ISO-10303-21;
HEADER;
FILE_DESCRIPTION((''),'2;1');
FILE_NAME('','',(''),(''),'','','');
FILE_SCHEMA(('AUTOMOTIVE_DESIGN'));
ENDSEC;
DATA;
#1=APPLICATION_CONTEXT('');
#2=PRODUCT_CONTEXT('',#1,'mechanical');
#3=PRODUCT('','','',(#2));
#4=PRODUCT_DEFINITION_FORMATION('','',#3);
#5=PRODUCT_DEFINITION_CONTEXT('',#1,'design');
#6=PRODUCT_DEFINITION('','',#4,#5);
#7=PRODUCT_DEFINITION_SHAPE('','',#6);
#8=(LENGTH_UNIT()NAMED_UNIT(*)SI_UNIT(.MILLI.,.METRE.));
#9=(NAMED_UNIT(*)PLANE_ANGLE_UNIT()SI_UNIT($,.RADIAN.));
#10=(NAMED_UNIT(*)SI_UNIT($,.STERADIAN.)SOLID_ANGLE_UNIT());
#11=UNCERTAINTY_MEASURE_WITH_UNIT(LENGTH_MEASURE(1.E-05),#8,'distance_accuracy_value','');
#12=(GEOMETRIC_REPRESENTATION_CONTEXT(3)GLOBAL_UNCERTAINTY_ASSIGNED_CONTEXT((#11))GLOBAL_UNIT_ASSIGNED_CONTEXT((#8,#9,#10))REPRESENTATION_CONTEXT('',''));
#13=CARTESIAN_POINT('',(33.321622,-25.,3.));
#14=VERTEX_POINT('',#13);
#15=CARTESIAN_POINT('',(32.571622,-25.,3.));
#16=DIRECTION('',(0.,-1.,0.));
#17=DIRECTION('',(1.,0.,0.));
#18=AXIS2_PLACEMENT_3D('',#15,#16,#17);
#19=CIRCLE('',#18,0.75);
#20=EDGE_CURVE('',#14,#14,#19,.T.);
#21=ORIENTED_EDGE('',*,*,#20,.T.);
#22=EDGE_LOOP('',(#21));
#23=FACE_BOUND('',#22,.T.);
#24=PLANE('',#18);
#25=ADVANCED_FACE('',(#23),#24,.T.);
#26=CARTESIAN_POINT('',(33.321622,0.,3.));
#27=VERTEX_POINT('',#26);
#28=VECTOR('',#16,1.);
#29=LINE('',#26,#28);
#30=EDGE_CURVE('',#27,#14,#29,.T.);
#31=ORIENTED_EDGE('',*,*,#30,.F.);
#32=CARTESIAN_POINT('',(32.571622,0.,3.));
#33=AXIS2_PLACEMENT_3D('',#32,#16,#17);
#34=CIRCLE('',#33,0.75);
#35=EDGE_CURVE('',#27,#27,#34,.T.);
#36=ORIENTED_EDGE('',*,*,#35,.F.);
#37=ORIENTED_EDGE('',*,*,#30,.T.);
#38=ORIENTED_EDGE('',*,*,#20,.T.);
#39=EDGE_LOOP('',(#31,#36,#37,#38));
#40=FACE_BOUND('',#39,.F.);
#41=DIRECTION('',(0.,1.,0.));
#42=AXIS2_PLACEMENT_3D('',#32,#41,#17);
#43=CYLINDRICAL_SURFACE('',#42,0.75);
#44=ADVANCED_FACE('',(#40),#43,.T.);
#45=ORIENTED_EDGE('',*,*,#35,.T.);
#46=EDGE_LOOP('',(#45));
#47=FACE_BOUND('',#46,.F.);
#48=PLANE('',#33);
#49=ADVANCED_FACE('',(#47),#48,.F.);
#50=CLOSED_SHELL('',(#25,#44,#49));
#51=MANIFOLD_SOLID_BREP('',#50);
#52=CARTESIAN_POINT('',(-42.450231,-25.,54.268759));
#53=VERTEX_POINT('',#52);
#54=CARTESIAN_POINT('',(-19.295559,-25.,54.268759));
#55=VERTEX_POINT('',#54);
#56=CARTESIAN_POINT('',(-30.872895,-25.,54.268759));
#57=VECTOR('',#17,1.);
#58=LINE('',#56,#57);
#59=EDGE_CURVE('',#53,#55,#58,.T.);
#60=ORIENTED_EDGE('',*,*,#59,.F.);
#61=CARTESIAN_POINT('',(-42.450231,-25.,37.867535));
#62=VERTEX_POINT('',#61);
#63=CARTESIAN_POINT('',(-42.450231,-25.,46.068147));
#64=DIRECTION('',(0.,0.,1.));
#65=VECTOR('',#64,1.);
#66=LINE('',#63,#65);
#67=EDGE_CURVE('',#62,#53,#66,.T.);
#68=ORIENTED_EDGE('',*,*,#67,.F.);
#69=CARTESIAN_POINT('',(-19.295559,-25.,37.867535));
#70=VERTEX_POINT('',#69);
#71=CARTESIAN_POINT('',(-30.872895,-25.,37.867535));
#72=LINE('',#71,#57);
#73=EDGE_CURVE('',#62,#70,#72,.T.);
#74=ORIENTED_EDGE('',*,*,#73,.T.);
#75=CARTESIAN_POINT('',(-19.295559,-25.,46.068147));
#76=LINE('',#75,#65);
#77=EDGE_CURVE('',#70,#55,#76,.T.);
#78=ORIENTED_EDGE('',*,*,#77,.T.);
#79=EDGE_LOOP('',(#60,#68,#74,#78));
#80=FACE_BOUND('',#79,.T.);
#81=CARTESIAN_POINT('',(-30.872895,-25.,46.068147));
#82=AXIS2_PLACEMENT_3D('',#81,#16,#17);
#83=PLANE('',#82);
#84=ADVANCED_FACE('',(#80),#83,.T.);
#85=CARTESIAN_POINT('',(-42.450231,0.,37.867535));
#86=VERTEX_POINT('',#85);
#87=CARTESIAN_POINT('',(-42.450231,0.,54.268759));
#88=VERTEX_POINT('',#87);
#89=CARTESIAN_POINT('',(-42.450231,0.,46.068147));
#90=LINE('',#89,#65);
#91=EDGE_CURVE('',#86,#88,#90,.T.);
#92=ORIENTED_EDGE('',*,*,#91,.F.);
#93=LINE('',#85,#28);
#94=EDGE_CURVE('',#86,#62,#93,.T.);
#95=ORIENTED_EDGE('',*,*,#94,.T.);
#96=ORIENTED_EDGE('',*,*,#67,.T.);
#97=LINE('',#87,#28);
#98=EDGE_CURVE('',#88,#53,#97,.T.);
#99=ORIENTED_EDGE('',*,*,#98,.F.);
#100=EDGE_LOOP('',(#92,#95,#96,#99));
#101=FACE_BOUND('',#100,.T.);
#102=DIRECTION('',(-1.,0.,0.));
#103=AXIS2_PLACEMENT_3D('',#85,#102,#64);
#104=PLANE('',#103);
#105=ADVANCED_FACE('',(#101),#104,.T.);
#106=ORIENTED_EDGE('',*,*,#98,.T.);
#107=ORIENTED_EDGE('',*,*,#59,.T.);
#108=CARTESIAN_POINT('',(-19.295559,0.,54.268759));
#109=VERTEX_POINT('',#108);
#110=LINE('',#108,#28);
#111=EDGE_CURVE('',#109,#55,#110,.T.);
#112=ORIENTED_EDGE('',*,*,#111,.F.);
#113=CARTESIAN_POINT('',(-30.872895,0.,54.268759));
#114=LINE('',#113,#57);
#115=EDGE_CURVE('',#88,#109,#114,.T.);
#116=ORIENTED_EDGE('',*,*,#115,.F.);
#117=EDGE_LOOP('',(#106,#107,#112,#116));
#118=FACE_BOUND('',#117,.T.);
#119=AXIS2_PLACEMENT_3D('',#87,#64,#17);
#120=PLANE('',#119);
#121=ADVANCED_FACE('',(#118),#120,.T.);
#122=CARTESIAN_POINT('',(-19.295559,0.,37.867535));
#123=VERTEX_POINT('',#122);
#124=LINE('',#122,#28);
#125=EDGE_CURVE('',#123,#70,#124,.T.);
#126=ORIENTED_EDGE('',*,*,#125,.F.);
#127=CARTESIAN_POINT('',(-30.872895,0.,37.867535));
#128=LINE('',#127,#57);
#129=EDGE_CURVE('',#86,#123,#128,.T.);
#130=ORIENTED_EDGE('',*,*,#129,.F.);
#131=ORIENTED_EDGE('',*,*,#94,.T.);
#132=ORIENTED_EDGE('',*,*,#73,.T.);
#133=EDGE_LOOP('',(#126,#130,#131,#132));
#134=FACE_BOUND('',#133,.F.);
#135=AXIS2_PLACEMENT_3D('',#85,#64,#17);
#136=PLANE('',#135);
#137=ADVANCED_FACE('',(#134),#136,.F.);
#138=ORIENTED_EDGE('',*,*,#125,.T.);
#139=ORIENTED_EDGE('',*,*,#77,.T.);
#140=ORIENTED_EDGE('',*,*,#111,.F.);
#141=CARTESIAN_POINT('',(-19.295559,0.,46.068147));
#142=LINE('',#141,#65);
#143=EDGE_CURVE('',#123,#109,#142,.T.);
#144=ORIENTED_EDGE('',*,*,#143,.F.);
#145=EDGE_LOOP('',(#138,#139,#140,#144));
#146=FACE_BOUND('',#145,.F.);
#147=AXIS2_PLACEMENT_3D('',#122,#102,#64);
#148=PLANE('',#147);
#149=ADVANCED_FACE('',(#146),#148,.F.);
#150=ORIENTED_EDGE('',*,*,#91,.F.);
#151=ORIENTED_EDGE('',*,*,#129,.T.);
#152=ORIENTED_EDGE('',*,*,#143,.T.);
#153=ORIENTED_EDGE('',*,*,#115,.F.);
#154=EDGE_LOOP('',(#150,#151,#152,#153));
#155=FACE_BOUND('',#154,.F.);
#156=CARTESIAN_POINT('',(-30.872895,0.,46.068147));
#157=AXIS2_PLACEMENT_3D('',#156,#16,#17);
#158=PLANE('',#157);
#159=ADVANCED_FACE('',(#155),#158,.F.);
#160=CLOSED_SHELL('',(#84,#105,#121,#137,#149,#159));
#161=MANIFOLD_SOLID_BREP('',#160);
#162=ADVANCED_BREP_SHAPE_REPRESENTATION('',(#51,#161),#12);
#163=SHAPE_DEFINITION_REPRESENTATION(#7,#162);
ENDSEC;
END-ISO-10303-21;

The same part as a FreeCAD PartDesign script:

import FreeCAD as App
import Part
import Sketcher
from FreeCAD import Vector

doc = App.newDocument("Part")
body = doc.addObject("PartDesign::Body", "Body")
body.AllowCompound = True

# Sketch on XZ plane
sketch1 = body.newObject("Sketcher::SketchObject", "Sketch")
sketch1.AttachmentSupport = (doc.getObject("XZ_Plane"), [""])
sketch1.MapMode = "FlatFace"
sketch1.addGeometry(Part.Circle(Vector(32.6, 3, 0), Vector(0, 0, 1), 0.8), False)
sketch1.addGeometry(Part.LineSegment(Vector(-42.5, 54.3, 0), Vector(-42.5, 37.9, 0)), False)
sketch1.addGeometry(Part.LineSegment(Vector(-42.5, 37.9, 0), Vector(-19.3, 37.9, 0)), False)
sketch1.addGeometry(Part.LineSegment(Vector(-19.3, 37.9, 0), Vector(-19.3, 54.3, 0)), False)
sketch1.addGeometry(Part.LineSegment(Vector(-19.3, 54.3, 0), Vector(-42.5, 54.3, 0)), False)
sketch1.addConstraint(Sketcher.Constraint("Coincident", 1, 2, 2, 1))
sketch1.addConstraint(Sketcher.Constraint("Coincident", 2, 2, 3, 1))
sketch1.addConstraint(Sketcher.Constraint("Coincident", 3, 2, 4, 1))
sketch1.addConstraint(Sketcher.Constraint("Coincident", 4, 2, 1, 1))
sketch1.addConstraint(Sketcher.Constraint("Vertical", 1))
sketch1.addConstraint(Sketcher.Constraint("Horizontal", 2))
sketch1.addConstraint(Sketcher.Constraint("Vertical", 3))
sketch1.addConstraint(Sketcher.Constraint("Horizontal", 4))
sketch1.addConstraint(Sketcher.Constraint("Diameter", 0, 1.5))
sketch1.addConstraint(Sketcher.Constraint("DistanceY", -1, 1, 0, 3, 3.0))
sketch1.addConstraint(Sketcher.Constraint("DistanceX", 2, 1, 2, 2, 23.154671))
sketch1.addConstraint(Sketcher.Constraint("DistanceY", 1, 2, 1, 1, 16.401224))
sketch1.addConstraint(Sketcher.Constraint("DistanceX", -1, 1, 0, 3, 32.571622))
sketch1.addConstraint(Sketcher.Constraint("DistanceX", 1, 2, -1, 1, 42.450231))
sketch1.addConstraint(Sketcher.Constraint("DistanceY", -1, 1, 3, 2, 54.268759))
pad1 = body.newObject("PartDesign::Pad", "Pad")
pad1.Profile = sketch1
pad1.Length = 25

doc.recompute()
